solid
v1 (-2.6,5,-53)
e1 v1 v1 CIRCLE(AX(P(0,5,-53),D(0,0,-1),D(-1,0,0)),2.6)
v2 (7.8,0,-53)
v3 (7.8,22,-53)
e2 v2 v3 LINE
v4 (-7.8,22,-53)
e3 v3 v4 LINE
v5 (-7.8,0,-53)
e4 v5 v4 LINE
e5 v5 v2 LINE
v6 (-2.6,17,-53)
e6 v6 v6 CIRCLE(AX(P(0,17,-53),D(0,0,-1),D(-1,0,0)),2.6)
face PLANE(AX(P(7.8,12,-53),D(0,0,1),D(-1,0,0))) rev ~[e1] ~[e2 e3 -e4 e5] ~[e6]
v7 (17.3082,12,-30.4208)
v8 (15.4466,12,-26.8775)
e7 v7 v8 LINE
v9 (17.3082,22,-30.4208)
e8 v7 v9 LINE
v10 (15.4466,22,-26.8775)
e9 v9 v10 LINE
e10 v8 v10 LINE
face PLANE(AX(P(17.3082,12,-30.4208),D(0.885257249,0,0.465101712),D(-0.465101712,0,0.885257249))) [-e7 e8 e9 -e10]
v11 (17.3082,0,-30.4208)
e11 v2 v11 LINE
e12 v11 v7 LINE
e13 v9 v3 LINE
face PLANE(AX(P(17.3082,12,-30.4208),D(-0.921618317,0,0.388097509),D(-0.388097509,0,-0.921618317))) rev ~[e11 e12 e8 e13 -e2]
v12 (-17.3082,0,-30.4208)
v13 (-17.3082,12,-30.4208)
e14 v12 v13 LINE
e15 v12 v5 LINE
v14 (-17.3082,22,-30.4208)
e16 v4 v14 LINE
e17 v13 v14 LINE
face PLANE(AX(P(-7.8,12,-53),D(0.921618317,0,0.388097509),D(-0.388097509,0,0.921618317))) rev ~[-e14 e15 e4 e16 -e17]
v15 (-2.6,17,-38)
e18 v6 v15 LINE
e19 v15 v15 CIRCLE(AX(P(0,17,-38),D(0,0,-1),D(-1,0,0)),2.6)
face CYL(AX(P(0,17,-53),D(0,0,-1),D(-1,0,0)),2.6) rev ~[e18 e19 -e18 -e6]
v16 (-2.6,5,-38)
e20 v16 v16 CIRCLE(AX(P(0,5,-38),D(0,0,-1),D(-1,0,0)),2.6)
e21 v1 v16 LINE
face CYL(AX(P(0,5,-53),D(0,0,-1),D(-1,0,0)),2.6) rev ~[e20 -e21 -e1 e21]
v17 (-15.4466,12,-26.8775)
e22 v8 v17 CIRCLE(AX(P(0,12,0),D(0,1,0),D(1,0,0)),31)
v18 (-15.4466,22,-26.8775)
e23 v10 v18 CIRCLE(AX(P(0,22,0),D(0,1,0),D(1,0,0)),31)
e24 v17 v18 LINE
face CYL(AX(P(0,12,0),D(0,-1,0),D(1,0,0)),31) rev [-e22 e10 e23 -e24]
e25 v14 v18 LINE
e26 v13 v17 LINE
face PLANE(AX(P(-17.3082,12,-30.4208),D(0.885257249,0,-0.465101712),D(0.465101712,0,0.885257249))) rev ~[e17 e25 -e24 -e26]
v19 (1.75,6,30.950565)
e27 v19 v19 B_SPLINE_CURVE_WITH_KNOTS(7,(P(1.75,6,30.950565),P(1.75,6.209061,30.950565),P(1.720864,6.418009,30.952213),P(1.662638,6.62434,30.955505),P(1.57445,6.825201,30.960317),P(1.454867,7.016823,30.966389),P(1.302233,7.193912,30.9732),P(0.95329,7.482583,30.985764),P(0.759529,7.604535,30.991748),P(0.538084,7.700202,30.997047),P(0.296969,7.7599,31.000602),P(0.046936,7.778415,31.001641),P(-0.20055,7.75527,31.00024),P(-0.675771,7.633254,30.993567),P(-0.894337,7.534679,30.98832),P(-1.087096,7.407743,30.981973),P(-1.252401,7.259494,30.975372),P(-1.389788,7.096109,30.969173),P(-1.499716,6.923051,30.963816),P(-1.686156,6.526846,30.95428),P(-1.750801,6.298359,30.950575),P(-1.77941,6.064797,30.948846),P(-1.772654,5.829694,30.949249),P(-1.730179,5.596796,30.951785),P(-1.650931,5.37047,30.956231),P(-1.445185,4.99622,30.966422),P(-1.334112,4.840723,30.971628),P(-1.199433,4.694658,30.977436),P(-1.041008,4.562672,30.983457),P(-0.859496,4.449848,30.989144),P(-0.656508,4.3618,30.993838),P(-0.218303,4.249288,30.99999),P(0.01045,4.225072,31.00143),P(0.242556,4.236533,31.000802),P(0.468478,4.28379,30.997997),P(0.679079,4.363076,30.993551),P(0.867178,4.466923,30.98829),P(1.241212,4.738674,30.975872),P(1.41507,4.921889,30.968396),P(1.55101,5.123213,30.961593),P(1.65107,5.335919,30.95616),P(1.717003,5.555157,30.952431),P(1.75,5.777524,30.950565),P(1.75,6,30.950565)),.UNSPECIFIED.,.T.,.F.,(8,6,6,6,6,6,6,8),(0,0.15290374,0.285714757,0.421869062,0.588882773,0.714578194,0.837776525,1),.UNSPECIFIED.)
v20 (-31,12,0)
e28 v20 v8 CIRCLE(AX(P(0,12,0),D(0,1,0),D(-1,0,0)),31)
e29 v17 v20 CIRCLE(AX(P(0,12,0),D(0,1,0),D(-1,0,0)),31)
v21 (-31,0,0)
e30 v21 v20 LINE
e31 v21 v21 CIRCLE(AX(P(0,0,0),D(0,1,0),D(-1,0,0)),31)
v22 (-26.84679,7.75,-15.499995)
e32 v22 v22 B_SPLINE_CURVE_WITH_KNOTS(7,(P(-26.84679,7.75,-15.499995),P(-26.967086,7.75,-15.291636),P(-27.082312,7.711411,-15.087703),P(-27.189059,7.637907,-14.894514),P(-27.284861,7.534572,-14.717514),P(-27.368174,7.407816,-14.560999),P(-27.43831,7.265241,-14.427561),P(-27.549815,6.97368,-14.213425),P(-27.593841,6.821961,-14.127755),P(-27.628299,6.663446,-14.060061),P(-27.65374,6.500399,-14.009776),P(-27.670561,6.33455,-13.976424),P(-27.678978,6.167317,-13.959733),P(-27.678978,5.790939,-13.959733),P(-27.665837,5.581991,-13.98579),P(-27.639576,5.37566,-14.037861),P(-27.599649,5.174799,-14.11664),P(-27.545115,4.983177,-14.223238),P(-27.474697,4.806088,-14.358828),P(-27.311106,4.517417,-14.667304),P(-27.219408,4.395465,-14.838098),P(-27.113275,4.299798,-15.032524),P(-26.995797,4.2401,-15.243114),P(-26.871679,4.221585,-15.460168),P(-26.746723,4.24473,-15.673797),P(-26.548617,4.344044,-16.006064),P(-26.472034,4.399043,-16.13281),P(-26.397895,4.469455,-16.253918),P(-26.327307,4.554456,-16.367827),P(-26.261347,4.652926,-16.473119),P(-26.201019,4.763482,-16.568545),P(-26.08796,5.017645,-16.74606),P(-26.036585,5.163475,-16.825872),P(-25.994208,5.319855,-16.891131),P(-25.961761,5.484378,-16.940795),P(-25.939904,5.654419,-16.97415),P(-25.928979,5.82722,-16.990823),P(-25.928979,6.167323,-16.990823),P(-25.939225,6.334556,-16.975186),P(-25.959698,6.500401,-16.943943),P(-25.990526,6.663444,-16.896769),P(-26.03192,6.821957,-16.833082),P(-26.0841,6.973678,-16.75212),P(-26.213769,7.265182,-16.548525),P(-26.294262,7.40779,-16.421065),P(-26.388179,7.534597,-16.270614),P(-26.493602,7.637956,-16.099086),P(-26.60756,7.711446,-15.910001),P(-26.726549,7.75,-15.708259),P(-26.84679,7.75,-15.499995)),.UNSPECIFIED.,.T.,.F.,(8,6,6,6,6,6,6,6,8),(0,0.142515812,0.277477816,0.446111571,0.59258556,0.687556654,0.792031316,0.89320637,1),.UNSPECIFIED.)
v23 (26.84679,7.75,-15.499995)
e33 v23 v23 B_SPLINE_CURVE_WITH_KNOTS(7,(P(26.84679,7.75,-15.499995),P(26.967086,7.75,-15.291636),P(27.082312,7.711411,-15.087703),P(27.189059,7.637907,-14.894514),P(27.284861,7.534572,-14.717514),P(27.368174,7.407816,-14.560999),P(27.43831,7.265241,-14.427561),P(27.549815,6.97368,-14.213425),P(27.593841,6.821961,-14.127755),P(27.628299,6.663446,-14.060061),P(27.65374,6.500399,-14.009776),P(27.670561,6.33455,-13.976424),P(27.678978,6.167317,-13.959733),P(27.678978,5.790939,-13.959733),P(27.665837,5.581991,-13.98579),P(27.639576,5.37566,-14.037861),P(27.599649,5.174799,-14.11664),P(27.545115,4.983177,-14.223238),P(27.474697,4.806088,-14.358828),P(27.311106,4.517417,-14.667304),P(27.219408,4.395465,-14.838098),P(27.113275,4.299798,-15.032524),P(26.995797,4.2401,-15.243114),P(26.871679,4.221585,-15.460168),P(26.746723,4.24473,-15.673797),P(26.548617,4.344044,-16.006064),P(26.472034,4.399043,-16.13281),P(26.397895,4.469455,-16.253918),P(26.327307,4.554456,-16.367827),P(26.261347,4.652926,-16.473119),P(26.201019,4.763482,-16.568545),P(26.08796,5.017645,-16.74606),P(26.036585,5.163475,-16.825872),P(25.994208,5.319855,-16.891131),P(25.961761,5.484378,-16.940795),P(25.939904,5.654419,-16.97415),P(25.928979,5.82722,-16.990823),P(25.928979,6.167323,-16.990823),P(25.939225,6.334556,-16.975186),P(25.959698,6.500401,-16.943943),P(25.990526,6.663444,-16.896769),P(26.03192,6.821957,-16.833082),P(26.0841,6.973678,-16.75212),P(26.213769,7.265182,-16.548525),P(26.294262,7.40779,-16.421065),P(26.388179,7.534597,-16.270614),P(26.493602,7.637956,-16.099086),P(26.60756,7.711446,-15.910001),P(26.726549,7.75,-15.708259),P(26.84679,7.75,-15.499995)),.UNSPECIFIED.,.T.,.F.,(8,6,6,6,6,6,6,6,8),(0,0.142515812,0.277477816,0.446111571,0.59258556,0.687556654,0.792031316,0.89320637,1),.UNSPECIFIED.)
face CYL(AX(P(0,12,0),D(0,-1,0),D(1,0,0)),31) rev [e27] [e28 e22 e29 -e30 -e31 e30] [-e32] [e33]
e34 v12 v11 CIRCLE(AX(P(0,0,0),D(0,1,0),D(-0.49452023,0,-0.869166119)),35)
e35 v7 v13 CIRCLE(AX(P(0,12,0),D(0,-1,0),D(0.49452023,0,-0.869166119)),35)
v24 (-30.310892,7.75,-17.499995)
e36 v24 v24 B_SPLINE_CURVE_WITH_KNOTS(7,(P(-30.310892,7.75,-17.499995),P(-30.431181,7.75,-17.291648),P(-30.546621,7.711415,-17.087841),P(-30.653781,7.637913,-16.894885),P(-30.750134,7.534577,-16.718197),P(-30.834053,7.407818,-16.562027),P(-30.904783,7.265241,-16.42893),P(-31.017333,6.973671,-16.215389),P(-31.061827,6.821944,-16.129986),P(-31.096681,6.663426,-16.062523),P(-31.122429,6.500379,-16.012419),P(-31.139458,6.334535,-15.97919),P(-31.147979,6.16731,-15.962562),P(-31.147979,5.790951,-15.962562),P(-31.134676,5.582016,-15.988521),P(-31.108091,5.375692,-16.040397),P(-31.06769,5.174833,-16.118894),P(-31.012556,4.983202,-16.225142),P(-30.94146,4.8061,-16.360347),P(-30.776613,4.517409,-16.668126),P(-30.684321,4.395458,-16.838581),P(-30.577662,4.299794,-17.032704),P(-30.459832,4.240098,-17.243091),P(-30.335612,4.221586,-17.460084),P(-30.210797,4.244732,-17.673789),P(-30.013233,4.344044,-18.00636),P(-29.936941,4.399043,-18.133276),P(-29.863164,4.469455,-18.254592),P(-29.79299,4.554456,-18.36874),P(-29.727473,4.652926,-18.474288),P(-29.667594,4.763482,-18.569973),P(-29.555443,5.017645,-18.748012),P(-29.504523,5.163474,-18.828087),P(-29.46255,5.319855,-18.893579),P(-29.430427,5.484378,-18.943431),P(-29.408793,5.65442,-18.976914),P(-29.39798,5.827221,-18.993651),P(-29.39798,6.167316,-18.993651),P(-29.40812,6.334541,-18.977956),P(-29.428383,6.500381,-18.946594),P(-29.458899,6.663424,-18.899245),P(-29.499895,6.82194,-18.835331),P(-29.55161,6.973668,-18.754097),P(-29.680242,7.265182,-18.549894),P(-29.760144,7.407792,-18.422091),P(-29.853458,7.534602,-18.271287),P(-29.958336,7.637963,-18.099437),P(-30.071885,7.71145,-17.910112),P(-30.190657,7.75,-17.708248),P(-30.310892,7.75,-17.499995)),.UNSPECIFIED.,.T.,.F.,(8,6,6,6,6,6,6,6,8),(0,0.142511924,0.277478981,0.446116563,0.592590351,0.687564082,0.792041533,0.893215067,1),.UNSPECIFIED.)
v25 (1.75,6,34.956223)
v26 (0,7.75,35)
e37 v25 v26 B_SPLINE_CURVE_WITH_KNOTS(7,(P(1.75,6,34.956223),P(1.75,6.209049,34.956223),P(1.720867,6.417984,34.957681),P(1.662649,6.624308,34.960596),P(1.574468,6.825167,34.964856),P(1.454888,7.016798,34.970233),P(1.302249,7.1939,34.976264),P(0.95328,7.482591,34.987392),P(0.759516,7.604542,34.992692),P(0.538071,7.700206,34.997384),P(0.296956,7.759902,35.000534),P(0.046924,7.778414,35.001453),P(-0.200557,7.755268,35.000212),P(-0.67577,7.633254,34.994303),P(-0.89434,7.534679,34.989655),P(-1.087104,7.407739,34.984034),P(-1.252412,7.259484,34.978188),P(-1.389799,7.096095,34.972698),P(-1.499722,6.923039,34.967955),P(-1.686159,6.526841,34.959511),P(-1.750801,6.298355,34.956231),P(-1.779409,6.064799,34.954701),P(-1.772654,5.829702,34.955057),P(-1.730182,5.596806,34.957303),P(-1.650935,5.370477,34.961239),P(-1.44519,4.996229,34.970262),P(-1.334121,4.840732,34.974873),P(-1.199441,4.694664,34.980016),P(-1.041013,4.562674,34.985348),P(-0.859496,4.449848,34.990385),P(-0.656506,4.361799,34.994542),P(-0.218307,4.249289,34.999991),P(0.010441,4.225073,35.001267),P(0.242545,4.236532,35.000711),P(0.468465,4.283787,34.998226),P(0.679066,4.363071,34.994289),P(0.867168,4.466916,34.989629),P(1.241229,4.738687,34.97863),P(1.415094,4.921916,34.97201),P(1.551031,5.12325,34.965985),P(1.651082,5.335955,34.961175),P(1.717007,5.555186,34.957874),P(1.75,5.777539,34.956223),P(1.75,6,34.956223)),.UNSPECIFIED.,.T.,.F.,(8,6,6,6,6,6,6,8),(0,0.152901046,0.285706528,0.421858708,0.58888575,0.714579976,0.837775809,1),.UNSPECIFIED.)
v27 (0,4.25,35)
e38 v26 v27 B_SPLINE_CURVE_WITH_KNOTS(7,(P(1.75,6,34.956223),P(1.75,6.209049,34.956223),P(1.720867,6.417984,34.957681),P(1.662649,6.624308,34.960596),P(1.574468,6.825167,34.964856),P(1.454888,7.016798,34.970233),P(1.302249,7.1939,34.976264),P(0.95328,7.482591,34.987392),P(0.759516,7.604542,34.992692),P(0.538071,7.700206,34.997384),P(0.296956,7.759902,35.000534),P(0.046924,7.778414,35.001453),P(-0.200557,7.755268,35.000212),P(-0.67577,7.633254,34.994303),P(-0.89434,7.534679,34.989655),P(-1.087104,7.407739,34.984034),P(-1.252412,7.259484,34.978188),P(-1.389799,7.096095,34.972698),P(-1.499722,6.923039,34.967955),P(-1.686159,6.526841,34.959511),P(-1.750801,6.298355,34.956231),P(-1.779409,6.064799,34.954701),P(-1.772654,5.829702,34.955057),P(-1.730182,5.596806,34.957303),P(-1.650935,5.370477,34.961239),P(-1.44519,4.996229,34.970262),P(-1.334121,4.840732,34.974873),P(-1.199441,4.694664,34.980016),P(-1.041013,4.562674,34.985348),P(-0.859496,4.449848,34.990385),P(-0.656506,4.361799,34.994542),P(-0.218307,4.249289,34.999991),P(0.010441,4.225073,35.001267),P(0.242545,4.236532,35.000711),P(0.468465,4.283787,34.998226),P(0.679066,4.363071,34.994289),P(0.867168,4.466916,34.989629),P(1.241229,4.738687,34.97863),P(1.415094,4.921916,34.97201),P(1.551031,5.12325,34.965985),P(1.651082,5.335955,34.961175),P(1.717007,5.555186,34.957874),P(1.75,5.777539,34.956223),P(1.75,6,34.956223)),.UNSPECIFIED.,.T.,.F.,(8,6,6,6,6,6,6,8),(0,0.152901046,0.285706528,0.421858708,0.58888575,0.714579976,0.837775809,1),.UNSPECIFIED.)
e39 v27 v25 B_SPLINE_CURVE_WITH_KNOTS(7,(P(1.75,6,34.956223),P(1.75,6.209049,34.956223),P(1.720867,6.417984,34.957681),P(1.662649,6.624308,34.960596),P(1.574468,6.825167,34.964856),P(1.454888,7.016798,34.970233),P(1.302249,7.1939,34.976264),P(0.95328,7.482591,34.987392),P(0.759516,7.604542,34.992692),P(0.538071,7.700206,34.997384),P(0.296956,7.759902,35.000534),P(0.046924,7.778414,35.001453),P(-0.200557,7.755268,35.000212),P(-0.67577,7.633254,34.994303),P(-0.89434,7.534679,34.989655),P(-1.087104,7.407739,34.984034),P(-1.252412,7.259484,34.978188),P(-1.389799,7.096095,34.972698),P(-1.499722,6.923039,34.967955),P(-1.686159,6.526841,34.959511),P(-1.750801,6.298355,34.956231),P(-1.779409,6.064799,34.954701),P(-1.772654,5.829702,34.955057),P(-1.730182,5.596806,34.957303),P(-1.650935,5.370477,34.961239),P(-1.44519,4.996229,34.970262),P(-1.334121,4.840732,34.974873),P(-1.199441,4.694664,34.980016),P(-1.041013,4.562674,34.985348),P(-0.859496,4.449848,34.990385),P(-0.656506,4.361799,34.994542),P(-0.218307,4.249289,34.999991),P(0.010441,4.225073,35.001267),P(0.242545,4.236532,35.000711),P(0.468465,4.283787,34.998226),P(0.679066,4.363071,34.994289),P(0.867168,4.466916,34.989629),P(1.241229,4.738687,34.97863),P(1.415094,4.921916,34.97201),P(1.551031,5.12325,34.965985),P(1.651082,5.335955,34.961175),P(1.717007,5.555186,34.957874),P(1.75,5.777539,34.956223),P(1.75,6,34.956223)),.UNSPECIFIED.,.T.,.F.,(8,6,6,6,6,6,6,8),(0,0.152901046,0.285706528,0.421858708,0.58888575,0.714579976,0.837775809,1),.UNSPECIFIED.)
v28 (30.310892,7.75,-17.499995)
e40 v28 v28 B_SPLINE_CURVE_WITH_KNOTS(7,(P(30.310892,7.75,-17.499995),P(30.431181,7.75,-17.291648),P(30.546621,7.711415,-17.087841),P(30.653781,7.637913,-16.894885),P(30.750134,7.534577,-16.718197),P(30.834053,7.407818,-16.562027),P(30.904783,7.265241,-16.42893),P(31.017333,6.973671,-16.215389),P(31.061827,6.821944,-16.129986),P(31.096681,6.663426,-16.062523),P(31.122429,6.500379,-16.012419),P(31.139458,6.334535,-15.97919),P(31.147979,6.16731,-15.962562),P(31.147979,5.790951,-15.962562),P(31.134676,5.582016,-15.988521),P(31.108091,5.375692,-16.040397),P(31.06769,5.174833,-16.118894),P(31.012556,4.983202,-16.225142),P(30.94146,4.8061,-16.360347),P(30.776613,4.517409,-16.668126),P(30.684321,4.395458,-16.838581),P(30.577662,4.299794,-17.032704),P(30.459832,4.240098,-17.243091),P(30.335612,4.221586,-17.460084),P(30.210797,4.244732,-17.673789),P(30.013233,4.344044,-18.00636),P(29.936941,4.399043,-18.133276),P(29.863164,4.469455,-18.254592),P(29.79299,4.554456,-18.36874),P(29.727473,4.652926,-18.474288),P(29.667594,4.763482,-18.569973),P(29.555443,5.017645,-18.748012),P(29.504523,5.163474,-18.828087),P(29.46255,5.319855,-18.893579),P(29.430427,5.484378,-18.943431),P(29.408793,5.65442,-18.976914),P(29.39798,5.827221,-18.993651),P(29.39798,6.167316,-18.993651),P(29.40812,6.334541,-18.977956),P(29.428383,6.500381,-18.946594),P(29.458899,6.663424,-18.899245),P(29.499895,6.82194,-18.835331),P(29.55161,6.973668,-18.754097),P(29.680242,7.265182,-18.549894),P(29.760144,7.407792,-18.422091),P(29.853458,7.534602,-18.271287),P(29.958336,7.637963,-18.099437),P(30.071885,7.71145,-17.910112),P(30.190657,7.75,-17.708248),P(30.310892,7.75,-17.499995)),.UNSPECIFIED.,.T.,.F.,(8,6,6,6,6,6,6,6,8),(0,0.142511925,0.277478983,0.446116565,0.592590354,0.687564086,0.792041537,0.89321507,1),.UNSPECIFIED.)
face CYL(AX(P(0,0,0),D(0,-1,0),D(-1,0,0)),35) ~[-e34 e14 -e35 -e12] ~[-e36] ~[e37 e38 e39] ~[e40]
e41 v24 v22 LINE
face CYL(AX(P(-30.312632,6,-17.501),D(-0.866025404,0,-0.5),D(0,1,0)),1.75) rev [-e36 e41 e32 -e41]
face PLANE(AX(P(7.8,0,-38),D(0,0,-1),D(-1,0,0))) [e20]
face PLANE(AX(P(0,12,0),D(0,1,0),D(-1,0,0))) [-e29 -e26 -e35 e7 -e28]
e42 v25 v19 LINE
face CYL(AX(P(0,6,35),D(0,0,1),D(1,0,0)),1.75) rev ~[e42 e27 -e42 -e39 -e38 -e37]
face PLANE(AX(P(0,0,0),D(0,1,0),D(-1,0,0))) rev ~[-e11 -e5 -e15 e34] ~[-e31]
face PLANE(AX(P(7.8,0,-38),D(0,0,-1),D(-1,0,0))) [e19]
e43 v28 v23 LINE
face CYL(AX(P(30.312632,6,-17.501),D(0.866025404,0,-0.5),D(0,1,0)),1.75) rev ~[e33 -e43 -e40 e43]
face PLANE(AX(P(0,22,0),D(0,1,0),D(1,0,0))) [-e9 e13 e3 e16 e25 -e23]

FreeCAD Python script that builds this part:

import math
import FreeCAD as App
import Part
import Sketcher

V = App.Vector

doc = App.newDocument("Part")
params = doc.addObject("Spreadsheet::Sheet", "Params")
for row, (alias, value) in enumerate([
    ("sketch1_diameter", "62 mm"),
    ("sketch1_radius", "35 mm"),
    ("pad1_length", "12 mm"),
    ("sketch2_radius", "31 mm"),
    ("sketch2_width", "15.6 mm"),
    ("pad2_length", "10 mm"),
    ("sketch3_diameter", "5.2 mm"),
    ("pocket1_length", "15 mm"),
    ("sketch4_diameter", "3.5 mm"),
    ("pocket2_length", "15 mm"),
    ("sketch5_diameter", "3.5 mm"),
    ("pocket3_length", "15 mm"),
    ("sketch6_diameter", "3.5 mm"),
    ("pocket4_length", "15 mm"),
], start=1):
    params.set(f"A{row}", alias)
    params.set(f"B{row}", "=" + value)
    params.setAlias(f"B{row}", alias)

body = doc.addObject("PartDesign::Body", "Body")

# Sketch on XZ plane
sketch1 = body.newObject("Sketcher::SketchObject", "Sketch")
sketch1.AttachmentSupport = (doc.getObject("XZ_Plane"), [""])
sketch1.MapMode = "FlatFace"
sketch1.addGeometry([
    Part.ArcOfCircle(Part.Circle(V(0, 0, 0), V(0, 0, 1), 35), math.radians(-60), math.radians(240)),  # 0
    Part.LineSegment(V(17, -30, 0), V(8, -53, 0)),  # 1
    Part.LineSegment(V(8, -53, 0), V(-8, -53, 0)),  # 2
    Part.LineSegment(V(-8, -53, 0), V(-17, -30, 0)),  # 3
    Part.Circle(V(0, 0, 0), V(0, 0, 1), 31),  # 4
], False)
sketch1.addConstraint([
    Sketcher.Constraint("Coincident", 0, 1, 1, 1),
    Sketcher.Constraint("Coincident", 1, 2, 2, 1),
    Sketcher.Constraint("Coincident", 2, 2, 3, 1),
    Sketcher.Constraint("Coincident", 3, 2, 0, 2),
    Sketcher.Constraint("Horizontal", 2),
    Sketcher.Constraint("Coincident", 0, 3, -1, 1),
    Sketcher.Constraint("Coincident", 4, 3, -1, 1),
    Sketcher.Constraint("Horizontal", 0, 1, 3, 2),
    Sketcher.Constraint("Equal", 1, 3),
    Sketcher.Constraint("Diameter", 4, 62.0),
    Sketcher.Constraint("Radius", 0, 35.0),
    Sketcher.Constraint("DistanceX", -1, 1, 1, 2, 7.8),
    Sketcher.Constraint("DistanceY", 1, 2, -1, 1, 53.0),
    Sketcher.Constraint("DistanceX", -1, 1, 0, 1, 17.3082),
])
sketch1.setExpression("Constraints[9]", "Params.sketch1_diameter")
sketch1.setExpression("Constraints[10]", "Params.sketch1_radius")
pad1 = body.newObject("PartDesign::Pad", "Pad")
pad1.Profile = sketch1
pad1.setExpression("Length", "Params.pad1_length")
pad1.Reversed = True

# Sketch on XZ plane
sketch2 = body.newObject("Sketcher::SketchObject", "Sketch001")
sketch2.AttachmentSupport = (doc.getObject("XZ_Plane"), [""])
sketch2.MapMode = "FlatFace"
sketch2.AttachmentOffset = App.Placement(V(0, 0, -12), App.Rotation())
sketch2.addGeometry([
    Part.LineSegment(V(15.4, -26.9, 0), V(17.3, -30.4, 0)),  # 0
    Part.LineSegment(V(17.3, -30.4, 0), V(7.8, -53, 0)),  # 1
    Part.LineSegment(V(7.8, -53, 0), V(-7.8, -53, 0)),  # 2
    Part.LineSegment(V(-7.8, -53, 0), V(-17.3, -30.4, 0)),  # 3
    Part.LineSegment(V(-17.3, -30.4, 0), V(-15.4, -26.9, 0)),  # 4
    Part.ArcOfCircle(Part.Circle(V(0, 0, 0), V(0, 0, 1), 31), math.radians(-120), math.radians(-60)),  # 5
], False)
sketch2.addConstraint([
    Sketcher.Constraint("Coincident", 0, 2, 1, 1),
    Sketcher.Constraint("Coincident", 1, 2, 2, 1),
    Sketcher.Constraint("Coincident", 2, 2, 3, 1),
    Sketcher.Constraint("Coincident", 3, 2, 4, 1),
    Sketcher.Constraint("Coincident", 4, 2, 5, 1),
    Sketcher.Constraint("Coincident", 5, 2, 0, 1),
    Sketcher.Constraint("Horizontal", 2),
    Sketcher.Constraint("Coincident", 5, 3, -1, 1),
    Sketcher.Constraint("Symmetric", 0, 2, 3, 2, -2),
    Sketcher.Constraint("Horizontal", 4, 2, 5, 2),
    Sketcher.Constraint("Equal", 1, 3),
    Sketcher.Constraint("Radius", 5, 31.0),
    Sketcher.Constraint("DistanceX", 2, 2, 2, 1, 15.6),
    Sketcher.Constraint("DistanceY", 1, 2, -1, 1, 53.0),
    Sketcher.Constraint("Distance", 0, 4.0026),
    Sketcher.Constraint("Distance", 1, 24.4995),
    Sketcher.Constraint("DistanceX", -1, 1, 0, 2, 17.3082),
])
sketch2.setExpression("Constraints[11]", "Params.sketch2_radius")
sketch2.setExpression("Constraints[12]", "Params.sketch2_width")
pad2 = body.newObject("PartDesign::Pad", "Pad001")
pad2.Profile = sketch2
pad2.setExpression("Length", "Params.pad2_length")
pad2.Reversed = True

# Sketch on XY plane
sketch3 = body.newObject("Sketcher::SketchObject", "Sketch002")
sketch3.AttachmentSupport = (doc.getObject("XY_Plane"), [""])
sketch3.MapMode = "FlatFace"
sketch3.AttachmentOffset = App.Placement(V(0, 0, -53), App.Rotation())
sketch3.addGeometry([
    Part.Circle(V(0, 17, 0), V(0, 0, 1), 2.6),
    Part.Circle(V(0, 5, 0), V(0, 0, 1), 2.6),
], False)
sketch3.addConstraint([
    Sketcher.Constraint("Equal", 0, 1),
    Sketcher.Constraint("PointOnObject", 0, 3, -2),
    Sketcher.Constraint("PointOnObject", 1, 3, -2),
    Sketcher.Constraint("Diameter", 0, 5.2),
    Sketcher.Constraint("DistanceY", -1, 1, 1, 3, 5.0),
    Sketcher.Constraint("DistanceY", 1, 3, 0, 3, 12.0),
])
sketch3.setExpression("Constraints[3]", "Params.sketch3_diameter")
pocket1 = body.newObject("PartDesign::Pocket", "Pocket")
pocket1.Profile = sketch3
pocket1.setExpression("Length", "Params.pocket1_length")
pocket1.Reversed = True

# Sketch on XY plane
sketch4 = body.newObject("Sketcher::SketchObject", "Sketch003")
sketch4.AttachmentSupport = (doc.getObject("XY_Plane"), [""])
sketch4.MapMode = "FlatFace"
sketch4.AttachmentOffset = App.Placement(V(0, 0, 35), App.Rotation())
sketch4.addGeometry(Part.Circle(V(0, 6, 0), V(0, 0, 1), 1.8), False)
sketch4.addConstraint([
    Sketcher.Constraint("PointOnObject", 0, 3, -2),
    Sketcher.Constraint("Diameter", 0, 3.5),
    Sketcher.Constraint("DistanceY", -1, 1, 0, 3, 6.0),
])
sketch4.setExpression("Constraints[1]", "Params.sketch4_diameter")
pocket2 = body.newObject("PartDesign::Pocket", "Pocket001")
pocket2.Profile = sketch4
pocket2.setExpression("Length", "Params.pocket2_length")

# Sketch on an angled plane
sketch5 = body.newObject("Sketcher::SketchObject", "Sketch004")
sketch5.Placement = App.Placement(V(30.3109, 0, -17.5), App.Rotation(V(0, 1, 0), V(0.5, 0, 0.866025404), V(0.866025404, 0, -0.5), "ZXY"))
sketch5.addGeometry(Part.Circle(V(6, 0, 0), V(0, 0, 1), 1.8), False)
sketch5.addConstraint([
    Sketcher.Constraint("PointOnObject", 0, 3, -1),
    Sketcher.Constraint("Diameter", 0, 3.5),
    Sketcher.Constraint("DistanceX", -1, 1, 0, 3, 6.0),
])
sketch5.setExpression("Constraints[1]", "Params.sketch5_diameter")
pocket3 = body.newObject("PartDesign::Pocket", "Pocket002")
pocket3.Profile = sketch5
pocket3.setExpression("Length", "Params.pocket3_length")

# Sketch on an angled plane
sketch6 = body.newObject("Sketcher::SketchObject", "Sketch005")
sketch6.Placement = App.Placement(V(-30.3109, 0, -17.5), App.Rotation(V(0, 1, 0), V(-0.5, 0, 0.866025404), V(0.866025404, 0, 0.5), "ZXY"))
sketch6.addGeometry(Part.Circle(V(6, 0, 0), V(0, 0, 1), 1.8), False)
sketch6.addConstraint([
    Sketcher.Constraint("PointOnObject", 0, 3, -1),
    Sketcher.Constraint("Diameter", 0, 3.5),
    Sketcher.Constraint("DistanceX", -1, 1, 0, 3, 6.0),
])
sketch6.setExpression("Constraints[1]", "Params.sketch6_diameter")
pocket4 = body.newObject("PartDesign::Pocket", "Pocket003")
pocket4.Profile = sketch6
pocket4.setExpression("Length", "Params.pocket4_length")
pocket4.Reversed = True

doc.recompute()
